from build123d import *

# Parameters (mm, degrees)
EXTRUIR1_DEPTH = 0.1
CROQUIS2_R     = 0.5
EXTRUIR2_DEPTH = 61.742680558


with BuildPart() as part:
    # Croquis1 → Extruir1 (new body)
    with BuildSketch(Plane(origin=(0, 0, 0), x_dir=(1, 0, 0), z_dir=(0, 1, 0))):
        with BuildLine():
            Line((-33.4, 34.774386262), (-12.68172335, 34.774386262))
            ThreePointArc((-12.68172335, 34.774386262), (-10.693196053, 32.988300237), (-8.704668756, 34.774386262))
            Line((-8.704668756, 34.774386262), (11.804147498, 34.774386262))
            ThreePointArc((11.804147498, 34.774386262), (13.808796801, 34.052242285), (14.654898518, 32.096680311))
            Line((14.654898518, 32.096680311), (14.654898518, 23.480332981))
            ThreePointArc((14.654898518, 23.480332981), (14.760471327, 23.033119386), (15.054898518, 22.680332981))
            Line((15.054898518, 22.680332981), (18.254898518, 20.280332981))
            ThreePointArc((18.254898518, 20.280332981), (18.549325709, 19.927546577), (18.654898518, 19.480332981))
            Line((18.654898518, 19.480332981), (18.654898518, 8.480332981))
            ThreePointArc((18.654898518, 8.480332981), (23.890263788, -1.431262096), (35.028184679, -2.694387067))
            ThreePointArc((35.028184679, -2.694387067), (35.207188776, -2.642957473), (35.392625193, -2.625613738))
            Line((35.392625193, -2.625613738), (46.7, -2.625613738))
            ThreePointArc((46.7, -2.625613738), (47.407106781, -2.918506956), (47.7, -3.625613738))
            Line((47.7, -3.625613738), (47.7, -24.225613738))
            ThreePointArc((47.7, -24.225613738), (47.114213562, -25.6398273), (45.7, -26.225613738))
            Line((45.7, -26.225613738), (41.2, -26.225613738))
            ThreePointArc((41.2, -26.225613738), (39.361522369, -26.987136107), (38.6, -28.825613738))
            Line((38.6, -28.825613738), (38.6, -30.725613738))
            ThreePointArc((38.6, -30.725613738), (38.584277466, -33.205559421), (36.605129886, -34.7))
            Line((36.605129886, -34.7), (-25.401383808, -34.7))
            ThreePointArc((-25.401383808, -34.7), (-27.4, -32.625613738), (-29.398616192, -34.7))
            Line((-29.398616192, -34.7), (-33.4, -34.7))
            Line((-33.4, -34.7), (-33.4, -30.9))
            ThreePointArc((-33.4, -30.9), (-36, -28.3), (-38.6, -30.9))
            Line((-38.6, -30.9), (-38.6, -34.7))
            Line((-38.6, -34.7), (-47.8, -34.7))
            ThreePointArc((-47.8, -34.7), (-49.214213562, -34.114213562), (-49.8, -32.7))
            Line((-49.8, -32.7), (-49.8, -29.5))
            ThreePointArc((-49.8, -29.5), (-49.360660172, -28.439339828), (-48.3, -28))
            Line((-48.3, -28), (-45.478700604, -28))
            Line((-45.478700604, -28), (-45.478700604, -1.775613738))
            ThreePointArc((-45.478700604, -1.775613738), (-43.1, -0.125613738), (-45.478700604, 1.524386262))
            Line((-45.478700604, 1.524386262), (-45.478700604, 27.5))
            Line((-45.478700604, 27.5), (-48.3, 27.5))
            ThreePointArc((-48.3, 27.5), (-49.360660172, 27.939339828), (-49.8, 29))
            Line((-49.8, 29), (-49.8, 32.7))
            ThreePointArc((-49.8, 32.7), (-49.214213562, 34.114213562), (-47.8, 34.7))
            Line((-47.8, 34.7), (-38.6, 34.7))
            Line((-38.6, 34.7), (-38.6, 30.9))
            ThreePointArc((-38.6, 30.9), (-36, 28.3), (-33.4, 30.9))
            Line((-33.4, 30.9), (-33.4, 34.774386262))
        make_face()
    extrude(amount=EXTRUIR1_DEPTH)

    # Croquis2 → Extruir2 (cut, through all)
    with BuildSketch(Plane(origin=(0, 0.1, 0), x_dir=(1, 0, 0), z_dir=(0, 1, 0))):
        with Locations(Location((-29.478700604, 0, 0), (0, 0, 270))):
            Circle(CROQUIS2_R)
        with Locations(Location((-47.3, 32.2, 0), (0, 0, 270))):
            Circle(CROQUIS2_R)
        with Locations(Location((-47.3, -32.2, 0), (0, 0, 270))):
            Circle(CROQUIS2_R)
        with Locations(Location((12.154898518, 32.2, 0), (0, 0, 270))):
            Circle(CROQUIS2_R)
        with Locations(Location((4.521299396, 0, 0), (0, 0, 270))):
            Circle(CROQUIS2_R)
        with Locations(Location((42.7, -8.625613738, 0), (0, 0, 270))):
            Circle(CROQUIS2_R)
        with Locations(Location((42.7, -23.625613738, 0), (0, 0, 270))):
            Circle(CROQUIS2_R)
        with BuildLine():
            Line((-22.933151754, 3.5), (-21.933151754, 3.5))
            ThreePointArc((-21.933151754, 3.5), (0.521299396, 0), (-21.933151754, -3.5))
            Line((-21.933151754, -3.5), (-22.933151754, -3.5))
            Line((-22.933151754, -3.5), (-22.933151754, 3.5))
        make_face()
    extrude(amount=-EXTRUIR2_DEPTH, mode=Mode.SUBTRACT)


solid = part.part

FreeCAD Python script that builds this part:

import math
import FreeCAD as App
import Part
import Sketcher

doc = App.newDocument("Part")
params = doc.addObject("Spreadsheet::Sheet", "Params")
for row, (alias, value) in enumerate([
    ("sketch1_radius", "2 mm"),
    ("sketch1_radius2", "1 mm"),
    ("sketch1_radius3", "12 mm"),
    ("sketch1_radius4", "2.6 mm"),
    ("sketch1_radius5", "1.5 mm"),
    ("pad1_length", "0.1 mm"),
    ("sketch2_diameter", "1 mm"),
    ("sketch2_radius", "11.5 mm"),
    ("sketch2_width", "1 mm"),
    ("sketch2_height", "7 mm"),
], start=1):
    params.set(f"A{row}", alias)
    params.set(f"B{row}", "=" + value)
    params.setAlias(f"B{row}", alias)

body = doc.addObject("PartDesign::Body", "Body")

# Sketch on XZ plane
sketch1 = body.newObject("Sketcher::SketchObject", "Sketch")
sketch1.AttachmentSupport = (doc.getObject("XZ_Plane"), [""])
sketch1.MapMode = "FlatFace"
sketch1.addGeometry([
    Part.LineSegment(App.Vector(-12.681723, -34.774386, 0), App.Vector(-33.4, -34.774386, 0)),  # 0
    Part.LineSegment(App.Vector(-33.4, -34.774386, 0), App.Vector(-33.4, -30.9, 0)),  # 1
    Part.ArcOfCircle(Part.Circle(App.Vector(-36, -30.9, 0), App.Vector(0, 0, 1), 2.6), math.radians(0), math.radians(180)),  # 2
    Part.LineSegment(App.Vector(-38.6, -30.9, 0), App.Vector(-38.6, -34.7, 0)),  # 3
    Part.LineSegment(App.Vector(-38.6, -34.7, 0), App.Vector(-47.8, -34.7, 0)),  # 4
    Part.ArcOfCircle(Part.Circle(App.Vector(-47.8, -32.7, 0), App.Vector(0, 0, 1), 2), math.radians(-180), math.radians(-90)),  # 5
    Part.LineSegment(App.Vector(-49.8, -32.7, 0), App.Vector(-49.8, -29, 0)),  # 6
    Part.ArcOfCircle(Part.Circle(App.Vector(-48.3, -29, 0), App.Vector(0, 0, 1), 1.5), math.radians(90), math.radians(180)),  # 7
    Part.LineSegment(App.Vector(-48.3, -27.5, 0), App.Vector(-45.478701, -27.5, 0)),  # 8
    Part.LineSegment(App.Vector(-45.478701, -27.5, 0), App.Vector(-45.478701, -1.524386, 0)),  # 9
    Part.ArcOfCircle(Part.Circle(App.Vector(-44.861617, 0.125614, 0), App.Vector(0, 0, 1), 1.761617), math.radians(-110.505312), math.radians(110.505312)),  # 10
    Part.LineSegment(App.Vector(-45.478701, 1.775614, 0), App.Vector(-45.478701, 28, 0)),  # 11
    Part.LineSegment(App.Vector(-45.478701, 28, 0), App.Vector(-48.3, 28, 0)),  # 12
    Part.ArcOfCircle(Part.Circle(App.Vector(-48.3, 29.5, 0), App.Vector(0, 0, 1), 1.5), math.radians(180), math.radians(270)),  # 13
    Part.LineSegment(App.Vector(-49.8, 29.5, 0), App.Vector(-49.8, 32.7, 0)),  # 14
    Part.ArcOfCircle(Part.Circle(App.Vector(-47.8, 32.7, 0), App.Vector(0, 0, 1), 2), math.radians(90), math.radians(180)),  # 15
    Part.LineSegment(App.Vector(-47.8, 34.7, 0), App.Vector(-38.6, 34.7, 0)),  # 16
    Part.LineSegment(App.Vector(-38.6, 34.7, 0), App.Vector(-38.6, 30.9, 0)),  # 17
    Part.ArcOfCircle(Part.Circle(App.Vector(-36, 30.9, 0), App.Vector(0, 0, 1), 2.6), math.radians(180), math.radians(360)),  # 18
    Part.LineSegment(App.Vector(-33.4, 30.9, 0), App.Vector(-33.4, 34.7, 0)),  # 19
    Part.LineSegment(App.Vector(-33.4, 34.7, 0), App.Vector(-29.398616, 34.7, 0)),  # 20
    Part.ArcOfCircle(Part.Circle(App.Vector(-27.4, 34.625614, 0), App.Vector(0, 0, 1), 2), math.radians(177.868499), math.radians(362.131501)),  # 21
    Part.LineSegment(App.Vector(-25.401384, 34.7, 0), App.Vector(36.60513, 34.7, 0)),  # 22
    Part.ArcOfCircle(Part.Circle(App.Vector(36.082172, 31.949674, 0), App.Vector(0, 0, 1), 2.799603), math.radians(-25.927036), math.radians(79.234078)),  # 23
    Part.LineSegment(App.Vector(38.6, 30.725614, 0), App.Vector(38.6, 28.825614, 0)),  # 24
    Part.ArcOfCircle(Part.Circle(App.Vector(41.2, 28.825614, 0), App.Vector(0, 0, 1), 2.6), math.radians(180), math.radians(270)),  # 25
    Part.LineSegment(App.Vector(41.2, 26.225614, 0), App.Vector(45.7, 26.225614, 0)),  # 26
    Part.ArcOfCircle(Part.Circle(App.Vector(45.7, 24.225614, 0), App.Vector(0, 0, 1), 2), math.radians(0), math.radians(90)),  # 27
    Part.LineSegment(App.Vector(47.7, 24.225614, 0), App.Vector(47.7, 3.625614, 0)),  # 28
    Part.ArcOfCircle(Part.Circle(App.Vector(46.7, 3.625614, 0), App.Vector(0, 0, 1), 1), math.radians(-90), math.radians(0)),  # 29
    Part.LineSegment(App.Vector(46.7, 2.625614, 0), App.Vector(35.392625, 2.625614, 0)),  # 30
    Part.ArcOfCircle(Part.Circle(App.Vector(35.392625, 3.625614, 0), App.Vector(0, 0, 1), 1), math.radians(-111.373155), math.radians(-90)),  # 31
    Part.ArcOfCircle(Part.Circle(App.Vector(30.654899, -8.480333, 0), App.Vector(0, 0, 1), 12), math.radians(68.626845), math.radians(180)),  # 32
    Part.LineSegment(App.Vector(18.654899, -8.480333, 0), App.Vector(18.654899, -19.480333, 0)),  # 33
    Part.ArcOfCircle(Part.Circle(App.Vector(17.654899, -19.480333, 0), App.Vector(0, 0, 1), 1), math.radians(-53.130102), math.radians(0)),  # 34
    Part.LineSegment(App.Vector(18.254899, -20.280333, 0), App.Vector(15.054899, -22.680333, 0)),  # 35
    Part.ArcOfCircle(Part.Circle(App.Vector(15.654899, -23.480333, 0), App.Vector(0, 0, 1), 1), math.radians(126.869898), math.radians(180)),  # 36
    Part.LineSegment(App.Vector(14.654899, -23.480333, 0), App.Vector(14.654899, -32.09668, 0)),  # 37
    Part.ArcOfCircle(Part.Circle(App.Vector(11.971941, -32.09668, 0), App.Vector(0, 0, 1), 2.682958), math.radians(-93.585636), math.radians(0)),  # 38
    Part.LineSegment(App.Vector(11.804147, -34.774386, 0), App.Vector(-8.704669, -34.774386, 0)),  # 39
    Part.ArcOfCircle(Part.Circle(App.Vector(-10.693196, -34.9883, 0), App.Vector(0, 0, 1), 2), math.radians(6.139929), math.radians(173.860071)),  # 40
], False)
sketch1.addConstraint([
    Sketcher.Constraint("Coincident", 0, 2, 1, 1),
    Sketcher.Constraint("Tangent", 1, 2, 2, 1),
    Sketcher.Constraint("Tangent", 2, 2, 3, 1),
    Sketcher.Constraint("Coincident", 3, 2, 4, 1),
    Sketcher.Constraint("Tangent", 4, 2, 5, 2),
    Sketcher.Constraint("Tangent", 5, 1, 6, 1),
    Sketcher.Constraint("Tangent", 6, 2, 7, 2),
    Sketcher.Constraint("Tangent", 7, 1, 8, 1),
    Sketcher.Constraint("Coincident", 8, 2, 9, 1),
    Sketcher.Constraint("Coincident", 9, 2, 10, 1),
    Sketcher.Constraint("Coincident", 10, 2, 11, 1),
    Sketcher.Constraint("Coincident", 11, 2, 12, 1),
    Sketcher.Constraint("Tangent", 12, 2, 13, 2),
    Sketcher.Constraint("Tangent", 13, 1, 14, 1),
    Sketcher.Constraint("Tangent", 14, 2, 15, 2),
    Sketcher.Constraint("Tangent", 15, 1, 16, 1),
    Sketcher.Constraint("Coincident", 16, 2, 17, 1),
    Sketcher.Constraint("Tangent", 17, 2, 18, 1),
    Sketcher.Constraint("Tangent", 18, 2, 19, 1),
    Sketcher.Constraint("Coincident", 19, 2, 20, 1),
    Sketcher.Constraint("Coincident", 20, 2, 21, 1),
    Sketcher.Constraint("Coincident", 21, 2, 22, 1),
    Sketcher.Constraint("Coincident", 22, 2, 23, 2),
    Sketcher.Constraint("Coincident", 23, 1, 24, 1),
    Sketcher.Constraint("Tangent", 24, 2, 25, 1),
    Sketcher.Constraint("Tangent", 25, 2, 26, 1),
    Sketcher.Constraint("Tangent", 26, 2, 27, 2),
    Sketcher.Constraint("Tangent", 27, 1, 28, 1),
    Sketcher.Constraint("Tangent", 28, 2, 29, 2),
    Sketcher.Constraint("Tangent", 29, 1, 30, 1),
    Sketcher.Constraint("Tangent", 30, 2, 31, 2),
    Sketcher.Constraint("Tangent", 31, 1, 32, 1),
    Sketcher.Constraint("Tangent", 32, 2, 33, 1),
    Sketcher.Constraint("Tangent", 33, 2, 34, 2),
    Sketcher.Constraint("Tangent", 34, 1, 35, 1),
    Sketcher.Constraint("Tangent", 35, 2, 36, 1),
    Sketcher.Constraint("Tangent", 36, 2, 37, 1),
    Sketcher.Constraint("Tangent", 37, 2, 38, 2),
    Sketcher.Constraint("Coincident", 38, 1, 39, 1),
    Sketcher.Constraint("Coincident", 39, 2, 40, 1),
    Sketcher.Constraint("Coincident", 40, 2, 0, 1),
    Sketcher.Constraint("Horizontal", 0),
    Sketcher.Constraint("Vertical", 1),
    Sketcher.Constraint("Vertical", 3),
    Sketcher.Constraint("Horizontal", 4),
    Sketcher.Constraint("Vertical", 6),
    Sketcher.Constraint("Horizontal", 8),
    Sketcher.Constraint("Vertical", 9),
    Sketcher.Constraint("Vertical", 11),
    Sketcher.Constraint("Horizontal", 12),
    Sketcher.Constraint("Vertical", 14),
    Sketcher.Constraint("Horizontal", 16),
    Sketcher.Constraint("Vertical", 17),
    Sketcher.Constraint("Vertical", 19),
    Sketcher.Constraint("Horizontal", 20),
    Sketcher.Constraint("Horizontal", 22),
    Sketcher.Constraint("Vertical", 24),
    Sketcher.Constraint("Horizontal", 26),
    Sketcher.Constraint("Vertical", 28),
    Sketcher.Constraint("Horizontal", 30),
    Sketcher.Constraint("Vertical", 33),
    Sketcher.Constraint("Vertical", 37),
    Sketcher.Constraint("Horizontal", 39),
    Sketcher.Constraint("Equal", 7, 13),
    Sketcher.Constraint("Equal", 5, 15),
    Sketcher.Constraint("Equal", 2, 18),
    Sketcher.Constraint("Equal", 15, 21),
    Sketcher.Constraint("Equal", 18, 25),
    Sketcher.Constraint("Equal", 21, 27),
    Sketcher.Constraint("Equal", 29, 31),
    Sketcher.Constraint("Equal", 31, 34),
    Sketcher.Constraint("Equal", 34, 36),
    Sketcher.Constraint("Equal", 27, 40),
    Sketcher.Constraint("Symmetric", 5, 3, 15, 3, -1),
    Sketcher.Constraint("Symmetric", 2, 3, 18, 3, -1),
    Sketcher.Constraint("Horizontal", 16, 2, 19, 2),
    Sketcher.Constraint("Horizontal", 20, 2, 21, 2),
    Sketcher.Constraint("Horizontal", 0, 2, 38, 1),
    Sketcher.Constraint("Vertical", 9, 2, 10, 2),
    Sketcher.Constraint("Radius", 5, 2.0),
    Sketcher.Constraint("Radius", 29, 1.0),
    Sketcher.Constraint("Radius", 32, 12.0),
    Sketcher.Constraint("Radius", 2, 2.6),
    Sketcher.Constraint("Radius", 7, 1.5),
    Sketcher.Constraint("DistanceY", 33, 2, 33, 1, 11.0),
    Sketcher.Constraint("Distance", 35, 4.0),
    Sketcher.Constraint("DistanceX", 4, 2, 4, 1, 9.2),
    Sketcher.Constraint("DistanceX", 26, 1, 26, 2, 4.5),
    Sketcher.Constraint("DistanceY", 3, 2, 3, 1, 3.8),
    Sketcher.Constraint("DistanceY", 6, 1, 6, 2, 3.7),
    Sketcher.Constraint("DistanceY", 14, 1, 14, 2, 3.2),
    Sketcher.Constraint("DistanceY", 24, 2, 24, 1, 1.9),
    Sketcher.Constraint("DistanceY", 28, 2, 28, 1, 20.6),
    Sketcher.Constraint("DistanceX", 2, 3, -1, 1, 36.0),
    Sketcher.Constraint("DistanceY", 7, 3, -1, 1, 29.0),
    Sketcher.Constraint("DistanceX", 15, 3, 25, 3, 89.0),
    Sketcher.Constraint("DistanceY", 29, 3, 21, 3, 31.0),
    Sketcher.Constraint("DistanceX", 36, 3, 34, 3, 2.0),
    Sketcher.Constraint("DistanceX", 18, 2, 21, 3, 6.0),
    Sketcher.Constraint("DistanceY", 10, 3, 21, 3, 34.5),
    Sketcher.Constraint("DistanceY", 0, 2, 10, 3, 34.9),
    Sketcher.Constraint("DistanceY", 9, 2, 10, 2, 3.3),
    Sketcher.Constraint("Radius", 38, 2.682958),
    Sketcher.Constraint("DistanceX", 8, 1, 8, 2, 2.821299),
    Sketcher.Constraint("Radius", 10, 1.761617),
    Sketcher.Constraint("Radius", 23, 2.799603),
    Sketcher.Constraint("DistanceX", -1, 1, 32, 3, 30.654899),
    Sketcher.Constraint("DistanceY", 40, 3, -1, 1, 34.9883),
    Sketcher.Constraint("DistanceX", 0, 2, 0, 1, 20.718277),
    Sketcher.Constraint("DistanceX", 20, 1, 20, 2, 4.001384),
    Sketcher.Constraint("DistanceX", 22, 1, 22, 2, 62.006514),
    Sketcher.Constraint("DistanceX", 30, 2, 30, 1, 11.307375),
    Sketcher.Constraint("DistanceX", 39, 2, 39, 1, 20.508816),
])
sketch1.setExpression("Constraints[79]", "Params.sketch1_radius")
sketch1.setExpression("Constraints[80]", "Params.sketch1_radius2")
sketch1.setExpression("Constraints[81]", "Params.sketch1_radius3")
sketch1.setExpression("Constraints[82]", "Params.sketch1_radius4")
sketch1.setExpression("Constraints[83]", "Params.sketch1_radius5")
pad1 = body.newObject("PartDesign::Pad", "Pad")
pad1.Profile = sketch1
pad1.setExpression("Length", "Params.pad1_length")
pad1.Reversed = True

# Sketch on XZ plane
sketch2 = body.newObject("Sketcher::SketchObject", "Sketch001")
sketch2.AttachmentSupport = (doc.getObject("XZ_Plane"), [""])
sketch2.MapMode = "FlatFace"
sketch2.AttachmentOffset = App.Placement(App.Vector(0, 0, -0.1), App.Rotation())
sketch2.addGeometry([
    Part.Circle(App.Vector(-29.478701, 0, 0), App.Vector(0, 0, 1), 0.5),  # 0
    Part.Circle(App.Vector(-47.3, -32.2, 0), App.Vector(0, 0, 1), 0.5),  # 1
    Part.Circle(App.Vector(-47.3, 32.2, 0), App.Vector(0, 0, 1), 0.5),  # 2
    Part.Circle(App.Vector(12.154899, -32.2, 0), App.Vector(0, 0, 1), 0.5),  # 3
    Part.Circle(App.Vector(4.521299, 0, 0), App.Vector(0, 0, 1), 0.5),  # 4
    Part.Circle(App.Vector(42.7, 8.625614, 0), App.Vector(0, 0, 1), 0.5),  # 5
    Part.Circle(App.Vector(42.7, 23.625614, 0), App.Vector(0, 0, 1), 0.5),  # 6
    Part.LineSegment(App.Vector(-21.933152, -3.5, 0), App.Vector(-22.933152, -3.5, 0)),  # 7
    Part.LineSegment(App.Vector(-22.933152, -3.5, 0), App.Vector(-22.933152, 3.5, 0)),  # 8
    Part.LineSegment(App.Vector(-22.933152, 3.5, 0), App.Vector(-21.933152, 3.5, 0)),  # 9
    Part.ArcOfCircle(Part.Circle(App.Vector(-10.978701, 0, 0), App.Vector(0, 0, 1), 11.5), math.radians(-162.281068), math.radians(162.281068)),  # 10
], False)
sketch2.addConstraint([
    Sketcher.Constraint("Coincident", 7, 2, 8, 1),
    Sketcher.Constraint("Coincident", 8, 2, 9, 1),
    Sketcher.Constraint("Coincident", 9, 2, 10, 2),
    Sketcher.Constraint("Coincident", 10, 1, 7, 1),
    Sketcher.Constraint("Horizontal", 7),
    Sketcher.Constraint("Vertical", 8),
    Sketcher.Constraint("Horizontal", 9),
    Sketcher.Constraint("Equal", 0, 1),
    Sketcher.Constraint("Equal", 1, 2),
    Sketcher.Constraint("Equal", 2, 3),
    Sketcher.Constraint("Equal", 3, 4),
    Sketcher.Constraint("Equal", 4, 5),
    Sketcher.Constraint("Equal", 5, 6),
    Sketcher.Constraint("Symmetric", 1, 3, 2, 3, -1),
    Sketcher.Constraint("Symmetric", 9, 2, 10, 1, -1),
    Sketcher.Constraint("PointOnObject", 0, 3, -1),
    Sketcher.Constraint("PointOnObject", 4, 3, -1),
    Sketcher.Constraint("Horizontal", 1, 3, 3, 3),
    Sketcher.Constraint("Vertical", 5, 3, 6, 3),
    Sketcher.Constraint("Diameter", 0, 1.0),
    Sketcher.Constraint("Radius", 10, 11.5),
    Sketcher.Constraint("DistanceX", 7, 2, 7, 1, 1.0),
    Sketcher.Constraint("DistanceY", 8, 1, 8, 2, 7.0),
    Sketcher.Constraint("DistanceX", 0, 3, 4, 3, 34.0),
    Sketcher.Constraint("DistanceX", 2, 3, 5, 3, 90.0),
    Sketcher.Constraint("DistanceY", 5, 3, 6, 3, 15.0),
    Sketcher.Constraint("DistanceX", 1, 3, -1, 1, 47.3),
    Sketcher.Constraint("DistanceY", 1, 3, -1, 1, 32.2),
    Sketcher.Constraint("DistanceX", 10, 3, 4, 3, 15.5),
    Sketcher.Constraint("DistanceX", 0, 3, -1, 1, 29.478701),
    Sketcher.Constraint("DistanceX", -1, 1, 3, 3, 12.154899),
    Sketcher.Constraint("DistanceY", -1, 1, 5, 3, 8.625614),
])
sketch2.setExpression("Constraints[19]", "Params.sketch2_diameter")
sketch2.setExpression("Constraints[20]", "Params.sketch2_radius")
sketch2.setExpression("Constraints[21]", "Params.sketch2_width")
sketch2.setExpression("Constraints[22]", "Params.sketch2_height")
pocket1 = body.newObject("PartDesign::Pocket", "Pocket")
pocket1.Profile = sketch2
pocket1.Type = "ThroughAll"
pocket1.Reversed = True

doc.recompute()
